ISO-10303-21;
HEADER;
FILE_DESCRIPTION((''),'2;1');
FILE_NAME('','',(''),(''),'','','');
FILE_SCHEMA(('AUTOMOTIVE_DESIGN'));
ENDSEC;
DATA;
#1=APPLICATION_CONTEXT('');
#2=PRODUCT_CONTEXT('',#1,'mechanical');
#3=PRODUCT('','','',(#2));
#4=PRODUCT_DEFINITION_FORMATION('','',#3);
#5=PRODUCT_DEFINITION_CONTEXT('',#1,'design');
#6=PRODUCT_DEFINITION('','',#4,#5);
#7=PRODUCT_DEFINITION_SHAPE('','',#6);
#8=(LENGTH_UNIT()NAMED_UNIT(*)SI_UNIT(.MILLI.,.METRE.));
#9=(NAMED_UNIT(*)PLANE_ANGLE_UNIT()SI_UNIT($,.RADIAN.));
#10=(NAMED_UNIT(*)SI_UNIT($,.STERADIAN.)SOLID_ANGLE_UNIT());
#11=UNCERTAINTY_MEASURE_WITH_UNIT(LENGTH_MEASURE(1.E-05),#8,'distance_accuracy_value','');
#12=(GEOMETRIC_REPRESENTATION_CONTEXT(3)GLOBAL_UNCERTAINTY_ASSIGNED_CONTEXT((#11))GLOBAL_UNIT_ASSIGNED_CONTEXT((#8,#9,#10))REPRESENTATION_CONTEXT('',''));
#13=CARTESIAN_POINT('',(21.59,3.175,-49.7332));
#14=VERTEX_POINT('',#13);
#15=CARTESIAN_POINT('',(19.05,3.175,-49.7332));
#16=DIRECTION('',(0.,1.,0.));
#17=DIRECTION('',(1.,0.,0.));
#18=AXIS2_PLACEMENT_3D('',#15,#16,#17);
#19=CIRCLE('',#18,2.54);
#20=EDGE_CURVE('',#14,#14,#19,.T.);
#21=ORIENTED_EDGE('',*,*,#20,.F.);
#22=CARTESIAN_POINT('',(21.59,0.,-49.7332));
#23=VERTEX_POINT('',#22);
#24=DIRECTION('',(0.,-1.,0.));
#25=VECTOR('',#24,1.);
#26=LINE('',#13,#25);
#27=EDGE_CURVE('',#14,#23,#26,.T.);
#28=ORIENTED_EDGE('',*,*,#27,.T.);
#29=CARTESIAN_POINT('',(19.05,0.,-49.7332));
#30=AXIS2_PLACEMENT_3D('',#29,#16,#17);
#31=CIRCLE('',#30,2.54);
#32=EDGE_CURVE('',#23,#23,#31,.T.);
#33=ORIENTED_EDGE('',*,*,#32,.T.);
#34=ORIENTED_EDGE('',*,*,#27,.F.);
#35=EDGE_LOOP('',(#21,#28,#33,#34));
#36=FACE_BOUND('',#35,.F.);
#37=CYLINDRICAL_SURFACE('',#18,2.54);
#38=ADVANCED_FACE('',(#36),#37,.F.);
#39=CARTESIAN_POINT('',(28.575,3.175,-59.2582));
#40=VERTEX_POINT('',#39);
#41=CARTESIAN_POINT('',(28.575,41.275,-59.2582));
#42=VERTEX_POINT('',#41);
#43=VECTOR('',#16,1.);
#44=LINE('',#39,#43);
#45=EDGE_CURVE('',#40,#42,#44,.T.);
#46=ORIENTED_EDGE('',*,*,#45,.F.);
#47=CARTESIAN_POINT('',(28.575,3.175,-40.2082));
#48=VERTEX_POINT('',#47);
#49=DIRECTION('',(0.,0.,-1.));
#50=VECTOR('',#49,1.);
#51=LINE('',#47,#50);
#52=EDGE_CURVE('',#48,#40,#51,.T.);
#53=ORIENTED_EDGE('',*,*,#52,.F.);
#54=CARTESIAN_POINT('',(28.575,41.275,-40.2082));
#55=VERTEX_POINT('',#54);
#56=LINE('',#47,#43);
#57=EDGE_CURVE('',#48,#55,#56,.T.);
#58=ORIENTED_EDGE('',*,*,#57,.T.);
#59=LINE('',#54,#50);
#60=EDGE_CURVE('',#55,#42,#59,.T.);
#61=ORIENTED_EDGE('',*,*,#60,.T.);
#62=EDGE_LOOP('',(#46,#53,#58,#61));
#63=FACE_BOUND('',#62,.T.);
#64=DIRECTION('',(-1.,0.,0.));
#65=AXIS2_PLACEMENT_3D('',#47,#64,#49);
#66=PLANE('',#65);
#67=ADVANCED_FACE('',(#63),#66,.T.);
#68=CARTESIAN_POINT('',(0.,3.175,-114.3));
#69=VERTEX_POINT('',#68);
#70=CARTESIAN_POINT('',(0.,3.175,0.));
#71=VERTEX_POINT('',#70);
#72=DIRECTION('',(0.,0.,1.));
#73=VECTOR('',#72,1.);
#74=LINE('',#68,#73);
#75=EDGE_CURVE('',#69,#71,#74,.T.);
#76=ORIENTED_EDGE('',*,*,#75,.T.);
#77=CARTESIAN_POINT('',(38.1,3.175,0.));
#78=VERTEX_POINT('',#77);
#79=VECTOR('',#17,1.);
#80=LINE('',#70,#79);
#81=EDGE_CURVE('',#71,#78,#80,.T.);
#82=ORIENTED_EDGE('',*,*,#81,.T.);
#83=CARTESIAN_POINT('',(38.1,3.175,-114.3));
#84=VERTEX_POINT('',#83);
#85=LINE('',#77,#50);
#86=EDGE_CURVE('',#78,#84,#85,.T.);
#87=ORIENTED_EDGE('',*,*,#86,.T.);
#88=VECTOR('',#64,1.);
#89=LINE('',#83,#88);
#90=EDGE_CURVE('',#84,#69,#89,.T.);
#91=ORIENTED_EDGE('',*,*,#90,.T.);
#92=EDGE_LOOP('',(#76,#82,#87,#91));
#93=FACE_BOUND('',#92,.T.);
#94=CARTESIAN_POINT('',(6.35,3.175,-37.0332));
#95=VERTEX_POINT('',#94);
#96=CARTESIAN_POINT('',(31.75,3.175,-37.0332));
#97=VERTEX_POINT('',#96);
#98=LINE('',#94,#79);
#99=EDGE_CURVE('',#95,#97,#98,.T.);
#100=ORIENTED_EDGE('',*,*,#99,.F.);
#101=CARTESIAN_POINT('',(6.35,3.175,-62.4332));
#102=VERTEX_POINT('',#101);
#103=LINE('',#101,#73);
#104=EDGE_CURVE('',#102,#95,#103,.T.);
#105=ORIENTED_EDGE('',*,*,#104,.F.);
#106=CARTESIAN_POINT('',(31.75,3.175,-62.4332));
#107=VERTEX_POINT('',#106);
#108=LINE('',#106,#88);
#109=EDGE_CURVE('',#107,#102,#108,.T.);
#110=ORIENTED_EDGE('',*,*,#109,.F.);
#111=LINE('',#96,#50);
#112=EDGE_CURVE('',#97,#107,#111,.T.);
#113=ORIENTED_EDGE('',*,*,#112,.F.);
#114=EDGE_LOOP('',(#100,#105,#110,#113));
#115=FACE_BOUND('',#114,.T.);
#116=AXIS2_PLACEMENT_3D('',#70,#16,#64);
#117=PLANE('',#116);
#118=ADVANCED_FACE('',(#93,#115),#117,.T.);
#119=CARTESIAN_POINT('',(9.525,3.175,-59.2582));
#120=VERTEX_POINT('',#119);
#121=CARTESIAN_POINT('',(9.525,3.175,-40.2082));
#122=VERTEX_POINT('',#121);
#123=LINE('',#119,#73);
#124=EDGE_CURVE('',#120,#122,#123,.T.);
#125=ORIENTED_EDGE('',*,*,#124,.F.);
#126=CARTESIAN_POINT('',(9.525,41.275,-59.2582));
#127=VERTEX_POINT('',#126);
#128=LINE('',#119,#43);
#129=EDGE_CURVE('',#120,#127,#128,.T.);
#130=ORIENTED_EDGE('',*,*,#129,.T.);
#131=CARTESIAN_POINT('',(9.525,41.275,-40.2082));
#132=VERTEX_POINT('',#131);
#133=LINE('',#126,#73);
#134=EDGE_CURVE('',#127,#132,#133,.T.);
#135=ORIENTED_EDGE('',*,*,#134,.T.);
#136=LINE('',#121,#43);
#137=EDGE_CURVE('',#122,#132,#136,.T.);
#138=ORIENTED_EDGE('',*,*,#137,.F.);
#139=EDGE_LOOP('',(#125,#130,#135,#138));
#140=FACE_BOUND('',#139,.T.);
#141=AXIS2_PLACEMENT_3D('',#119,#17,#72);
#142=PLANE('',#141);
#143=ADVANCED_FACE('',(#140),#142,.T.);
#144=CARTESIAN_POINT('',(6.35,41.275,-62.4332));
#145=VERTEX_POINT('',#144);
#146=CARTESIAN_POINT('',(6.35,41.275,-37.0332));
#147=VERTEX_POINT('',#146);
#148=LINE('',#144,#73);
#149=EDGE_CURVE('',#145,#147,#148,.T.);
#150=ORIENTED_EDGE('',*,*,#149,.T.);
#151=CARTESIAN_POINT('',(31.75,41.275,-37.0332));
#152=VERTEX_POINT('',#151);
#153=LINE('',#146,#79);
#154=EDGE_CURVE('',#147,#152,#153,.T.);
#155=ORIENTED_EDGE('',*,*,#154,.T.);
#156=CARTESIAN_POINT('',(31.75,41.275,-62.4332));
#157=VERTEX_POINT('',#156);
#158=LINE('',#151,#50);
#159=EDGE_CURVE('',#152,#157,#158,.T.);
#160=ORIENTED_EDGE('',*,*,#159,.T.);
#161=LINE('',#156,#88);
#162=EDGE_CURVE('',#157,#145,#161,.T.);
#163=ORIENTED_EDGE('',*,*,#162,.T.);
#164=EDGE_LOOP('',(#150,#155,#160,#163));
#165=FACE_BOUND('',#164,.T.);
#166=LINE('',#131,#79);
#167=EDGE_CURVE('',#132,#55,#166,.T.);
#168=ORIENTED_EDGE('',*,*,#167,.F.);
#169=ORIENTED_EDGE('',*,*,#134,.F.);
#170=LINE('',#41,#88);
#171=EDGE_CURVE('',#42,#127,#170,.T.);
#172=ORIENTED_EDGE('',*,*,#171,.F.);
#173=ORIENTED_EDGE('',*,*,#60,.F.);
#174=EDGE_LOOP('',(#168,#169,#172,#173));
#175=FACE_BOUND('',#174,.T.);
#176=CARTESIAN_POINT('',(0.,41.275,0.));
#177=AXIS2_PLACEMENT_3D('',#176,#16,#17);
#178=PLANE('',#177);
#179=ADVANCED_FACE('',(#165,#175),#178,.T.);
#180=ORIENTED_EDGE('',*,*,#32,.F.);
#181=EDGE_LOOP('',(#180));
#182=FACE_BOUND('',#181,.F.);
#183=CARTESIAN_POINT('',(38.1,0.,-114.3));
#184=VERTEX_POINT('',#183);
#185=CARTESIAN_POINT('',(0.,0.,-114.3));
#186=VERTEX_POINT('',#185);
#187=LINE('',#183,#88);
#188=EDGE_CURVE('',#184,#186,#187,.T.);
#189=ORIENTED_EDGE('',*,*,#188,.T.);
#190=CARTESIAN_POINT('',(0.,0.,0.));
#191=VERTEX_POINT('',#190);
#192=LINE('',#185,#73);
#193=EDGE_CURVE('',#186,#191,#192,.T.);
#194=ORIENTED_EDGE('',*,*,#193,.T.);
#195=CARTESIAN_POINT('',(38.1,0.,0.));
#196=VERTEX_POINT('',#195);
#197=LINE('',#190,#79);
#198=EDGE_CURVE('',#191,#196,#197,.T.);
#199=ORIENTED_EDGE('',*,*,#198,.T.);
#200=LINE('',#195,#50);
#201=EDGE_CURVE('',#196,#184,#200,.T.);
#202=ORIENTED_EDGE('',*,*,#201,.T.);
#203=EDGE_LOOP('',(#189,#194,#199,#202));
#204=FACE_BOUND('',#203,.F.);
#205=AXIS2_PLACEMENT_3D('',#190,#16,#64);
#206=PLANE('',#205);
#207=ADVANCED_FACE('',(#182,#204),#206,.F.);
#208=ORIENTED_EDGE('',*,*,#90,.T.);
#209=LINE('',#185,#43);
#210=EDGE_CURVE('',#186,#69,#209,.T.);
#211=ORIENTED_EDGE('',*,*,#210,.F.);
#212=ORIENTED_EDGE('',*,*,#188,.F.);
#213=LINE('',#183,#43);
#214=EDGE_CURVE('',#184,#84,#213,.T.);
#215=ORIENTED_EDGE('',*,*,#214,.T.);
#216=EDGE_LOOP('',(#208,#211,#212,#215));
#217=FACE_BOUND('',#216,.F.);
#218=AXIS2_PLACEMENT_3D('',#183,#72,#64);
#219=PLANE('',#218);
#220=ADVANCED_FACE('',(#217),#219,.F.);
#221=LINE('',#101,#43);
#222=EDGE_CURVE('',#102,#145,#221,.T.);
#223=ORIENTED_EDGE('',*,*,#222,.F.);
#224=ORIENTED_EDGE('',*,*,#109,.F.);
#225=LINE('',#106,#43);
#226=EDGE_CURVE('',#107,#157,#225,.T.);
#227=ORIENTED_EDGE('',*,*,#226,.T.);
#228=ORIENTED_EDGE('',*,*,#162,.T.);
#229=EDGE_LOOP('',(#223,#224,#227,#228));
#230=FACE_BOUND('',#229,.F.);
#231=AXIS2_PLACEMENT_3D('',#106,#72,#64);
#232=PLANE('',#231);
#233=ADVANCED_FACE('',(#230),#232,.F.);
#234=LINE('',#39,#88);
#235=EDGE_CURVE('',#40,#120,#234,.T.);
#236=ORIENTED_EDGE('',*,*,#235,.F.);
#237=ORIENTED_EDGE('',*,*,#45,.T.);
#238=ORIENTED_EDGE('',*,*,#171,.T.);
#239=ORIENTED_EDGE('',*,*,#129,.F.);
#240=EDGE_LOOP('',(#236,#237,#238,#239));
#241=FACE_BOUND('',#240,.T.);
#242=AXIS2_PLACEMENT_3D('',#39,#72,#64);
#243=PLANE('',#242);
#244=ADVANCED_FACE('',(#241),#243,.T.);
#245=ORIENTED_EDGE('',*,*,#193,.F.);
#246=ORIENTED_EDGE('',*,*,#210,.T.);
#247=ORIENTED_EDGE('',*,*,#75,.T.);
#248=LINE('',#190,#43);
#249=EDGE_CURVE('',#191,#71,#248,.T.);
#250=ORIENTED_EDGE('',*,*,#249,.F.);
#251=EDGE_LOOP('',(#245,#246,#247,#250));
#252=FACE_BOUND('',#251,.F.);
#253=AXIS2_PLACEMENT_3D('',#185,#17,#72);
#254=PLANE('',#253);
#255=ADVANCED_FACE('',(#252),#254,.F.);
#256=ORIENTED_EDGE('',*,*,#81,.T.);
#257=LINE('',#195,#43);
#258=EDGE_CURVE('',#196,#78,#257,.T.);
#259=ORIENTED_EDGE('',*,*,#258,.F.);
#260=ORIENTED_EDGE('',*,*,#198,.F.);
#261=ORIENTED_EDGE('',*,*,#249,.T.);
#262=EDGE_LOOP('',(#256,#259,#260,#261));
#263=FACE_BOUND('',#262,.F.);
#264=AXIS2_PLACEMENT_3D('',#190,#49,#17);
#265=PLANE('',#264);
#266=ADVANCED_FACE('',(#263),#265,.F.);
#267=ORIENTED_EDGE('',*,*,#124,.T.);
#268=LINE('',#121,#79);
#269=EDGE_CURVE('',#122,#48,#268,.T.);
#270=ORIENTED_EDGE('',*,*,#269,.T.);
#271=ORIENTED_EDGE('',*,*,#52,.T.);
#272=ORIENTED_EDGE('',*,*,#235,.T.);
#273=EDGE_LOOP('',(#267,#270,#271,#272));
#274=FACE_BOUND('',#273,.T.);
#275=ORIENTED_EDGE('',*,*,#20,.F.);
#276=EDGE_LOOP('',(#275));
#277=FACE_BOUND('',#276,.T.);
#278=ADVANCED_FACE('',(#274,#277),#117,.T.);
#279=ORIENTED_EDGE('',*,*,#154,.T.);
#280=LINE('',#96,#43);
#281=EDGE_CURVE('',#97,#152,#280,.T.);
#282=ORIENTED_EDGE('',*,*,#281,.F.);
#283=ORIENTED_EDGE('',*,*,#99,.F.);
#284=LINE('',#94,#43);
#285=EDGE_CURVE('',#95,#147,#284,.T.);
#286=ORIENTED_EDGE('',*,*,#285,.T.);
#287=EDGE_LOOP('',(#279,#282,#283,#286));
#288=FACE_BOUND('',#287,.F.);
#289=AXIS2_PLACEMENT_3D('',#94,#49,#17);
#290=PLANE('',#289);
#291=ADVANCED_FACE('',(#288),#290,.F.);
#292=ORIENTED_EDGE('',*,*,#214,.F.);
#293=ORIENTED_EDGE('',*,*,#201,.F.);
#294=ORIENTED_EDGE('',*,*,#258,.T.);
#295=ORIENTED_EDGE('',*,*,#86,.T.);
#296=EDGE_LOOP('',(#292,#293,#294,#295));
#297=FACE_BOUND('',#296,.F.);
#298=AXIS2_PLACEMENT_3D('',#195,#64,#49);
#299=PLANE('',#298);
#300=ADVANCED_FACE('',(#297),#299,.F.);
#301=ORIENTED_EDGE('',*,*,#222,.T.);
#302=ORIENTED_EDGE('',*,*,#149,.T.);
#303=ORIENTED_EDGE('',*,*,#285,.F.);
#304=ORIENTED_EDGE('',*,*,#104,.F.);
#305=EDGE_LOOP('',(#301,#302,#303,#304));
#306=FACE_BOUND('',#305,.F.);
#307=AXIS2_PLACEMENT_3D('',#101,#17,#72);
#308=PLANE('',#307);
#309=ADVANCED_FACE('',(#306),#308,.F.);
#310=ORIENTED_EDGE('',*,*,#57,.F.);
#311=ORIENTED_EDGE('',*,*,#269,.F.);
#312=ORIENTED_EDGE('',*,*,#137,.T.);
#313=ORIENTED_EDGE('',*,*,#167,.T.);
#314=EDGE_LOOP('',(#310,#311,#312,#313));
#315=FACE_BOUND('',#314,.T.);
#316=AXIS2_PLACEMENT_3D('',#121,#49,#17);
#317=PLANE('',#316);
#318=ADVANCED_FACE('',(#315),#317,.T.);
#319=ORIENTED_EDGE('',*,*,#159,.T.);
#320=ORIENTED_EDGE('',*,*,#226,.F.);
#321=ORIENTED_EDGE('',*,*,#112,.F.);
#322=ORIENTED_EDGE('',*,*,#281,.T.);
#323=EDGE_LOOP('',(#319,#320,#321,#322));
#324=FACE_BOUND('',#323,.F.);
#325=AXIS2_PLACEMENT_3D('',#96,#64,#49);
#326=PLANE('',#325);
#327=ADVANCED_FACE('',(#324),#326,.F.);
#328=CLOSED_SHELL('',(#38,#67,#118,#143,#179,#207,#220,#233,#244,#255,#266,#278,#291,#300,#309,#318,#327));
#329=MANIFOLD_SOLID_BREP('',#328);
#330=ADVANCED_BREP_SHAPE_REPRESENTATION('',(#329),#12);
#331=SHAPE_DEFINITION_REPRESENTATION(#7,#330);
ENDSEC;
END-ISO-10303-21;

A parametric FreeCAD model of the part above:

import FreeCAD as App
import Part
import Sketcher
Q = App.Units.Quantity

doc = App.newDocument("Part")
body = doc.addObject("PartDesign::Body", "Body")

# Sketch on XZ plane
sketch1 = body.newObject("Sketcher::SketchObject", "Sketch")
sketch1.AttachmentSupport = (doc.getObject("XZ_Plane"), [""])
sketch1.MapMode = "FlatFace"
sketch1.addGeometry(Part.LineSegment(App.Vector(0, -114, 0), App.Vector(0, 0, 0)), False)
sketch1.addGeometry(Part.LineSegment(App.Vector(0, 0, 0), App.Vector(38, 0, 0)), False)
sketch1.addGeometry(Part.LineSegment(App.Vector(38, 0, 0), App.Vector(38, -114, 0)), False)
sketch1.addGeometry(Part.LineSegment(App.Vector(38, -114, 0), App.Vector(0, -114, 0)), False)
sketch1.addConstraint(Sketcher.Constraint("Coincident", 0, 2, 1, 1))
sketch1.addConstraint(Sketcher.Constraint("Coincident", 1, 2, 2, 1))
sketch1.addConstraint(Sketcher.Constraint("Coincident", 2, 2, 3, 1))
sketch1.addConstraint(Sketcher.Constraint("Coincident", 3, 2, 0, 1))
sketch1.addConstraint(Sketcher.Constraint("Vertical", 0))
sketch1.addConstraint(Sketcher.Constraint("Horizontal", 1))
sketch1.addConstraint(Sketcher.Constraint("Vertical", 2))
sketch1.addConstraint(Sketcher.Constraint("Horizontal", 3))
sketch1.addConstraint(Sketcher.Constraint("Coincident", 0, 2, -1, 1))
sketch1.addConstraint(Sketcher.Constraint("DistanceX", 1, 1, 1, 2, Q("1.5 in")))
sketch1.addConstraint(Sketcher.Constraint("DistanceY", 0, 1, 0, 2, Q("4.5 in")))
pad1 = body.newObject("PartDesign::Pad", "Pad")
pad1.Profile = sketch1
pad1.Length = Q("0.125 in")
pad1.Reversed = True

# Sketch on XZ plane
sketch2 = body.newObject("Sketcher::SketchObject", "Sketch001")
sketch2.AttachmentSupport = (doc.getObject("XZ_Plane"), [""])
sketch2.MapMode = "FlatFace"
sketch2.AttachmentOffset = App.Placement(App.Vector(0, 0, -0.125 * 25.4), App.Rotation())
sketch2.addGeometry(Part.LineSegment(App.Vector(32, -37, 0), App.Vector(32, -62, 0)), False)
sketch2.addGeometry(Part.LineSegment(App.Vector(32, -62, 0), App.Vector(6, -62, 0)), False)
sketch2.addGeometry(Part.LineSegment(App.Vector(6, -62, 0), App.Vector(6, -37, 0)), False)
sketch2.addGeometry(Part.LineSegment(App.Vector(6, -37, 0), App.Vector(32, -37, 0)), False)
sketch2.addGeometry(Part.LineSegment(App.Vector(10, -59, 0), App.Vector(29, -59, 0)), False)
sketch2.addGeometry(Part.LineSegment(App.Vector(29, -59, 0), App.Vector(29, -40, 0)), False)
sketch2.addGeometry(Part.LineSegment(App.Vector(29, -40, 0), App.Vector(10, -40, 0)), False)
sketch2.addGeometry(Part.LineSegment(App.Vector(10, -40, 0), App.Vector(10, -59, 0)), False)
sketch2.addConstraint(Sketcher.Constraint("Coincident", 0, 2, 1, 1))
sketch2.addConstraint(Sketcher.Constraint("Coincident", 1, 2, 2, 1))
sketch2.addConstraint(Sketcher.Constraint("Coincident", 2, 2, 3, 1))
sketch2.addConstraint(Sketcher.Constraint("Coincident", 3, 2, 0, 1))
sketch2.addConstraint(Sketcher.Constraint("Coincident", 4, 2, 5, 1))
sketch2.addConstraint(Sketcher.Constraint("Coincident", 5, 2, 6, 1))
sketch2.addConstraint(Sketcher.Constraint("Coincident", 6, 2, 7, 1))
sketch2.addConstraint(Sketcher.Constraint("Coincident", 7, 2, 4, 1))
sketch2.addConstraint(Sketcher.Constraint("Vertical", 0))
sketch2.addConstraint(Sketcher.Constraint("Horizontal", 1))
sketch2.addConstraint(Sketcher.Constraint("Vertical", 2))
sketch2.addConstraint(Sketcher.Constraint("Horizontal", 3))
sketch2.addConstraint(Sketcher.Constraint("Horizontal", 4))
sketch2.addConstraint(Sketcher.Constraint("Vertical", 5))
sketch2.addConstraint(Sketcher.Constraint("Horizontal", 6))
sketch2.addConstraint(Sketcher.Constraint("Vertical", 7))
sketch2.addConstraint(Sketcher.Constraint("Equal", 3, 0))
sketch2.addConstraint(Sketcher.Constraint("Equal", 6, 5))
sketch2.addConstraint(Sketcher.Constraint("DistanceX", 1, 2, 1, 1, Q("1 in")))
sketch2.addConstraint(Sketcher.Constraint("DistanceX", -1, 1, 1, 2, Q("0.25 in")))
sketch2.addConstraint(Sketcher.Constraint("DistanceY", 2, 2, -1, 1, Q("1.458 in")))
sketch2.addConstraint(Sketcher.Constraint("DistanceX", 4, 2, 0, 2, Q("0.125 in")))
sketch2.addConstraint(Sketcher.Constraint("DistanceY", 0, 2, 4, 2, Q("0.125 in")))
sketch2.addConstraint(Sketcher.Constraint("DistanceY", 5, 2, 3, 2, Q("0.125 in")))
pad2 = body.newObject("PartDesign::Pad", "Pad001")
pad2.Profile = sketch2
pad2.Length = Q("1.5 in")
pad2.Reversed = True

# Sketch on XZ plane
sketch3 = body.newObject("Sketcher::SketchObject", "Sketch002")
sketch3.AttachmentSupport = (doc.getObject("XZ_Plane"), [""])
sketch3.MapMode = "FlatFace"
sketch3.AttachmentOffset = App.Placement(App.Vector(0, 0, -0.125 * 25.4), App.Rotation())
sketch3.addGeometry(Part.Circle(App.Vector(19.1, -49.7, 0), App.Vector(0, 0, 1), 2.5), False)
sketch3.addConstraint(Sketcher.Constraint("Diameter", 0, Q("0.2 in")))
sketch3.addConstraint(Sketcher.Constraint("DistanceX", -1, 1, 0, 3, Q("0.75 in")))
sketch3.addConstraint(Sketcher.Constraint("DistanceY", 0, 3, -1, 1, Q("1.958 in")))
pocket1 = body.newObject("PartDesign::Pocket", "Pocket")
pocket1.Profile = sketch3
pocket1.Length = Q("0.125 in")
pocket1.Reversed = True

doc.recompute()
